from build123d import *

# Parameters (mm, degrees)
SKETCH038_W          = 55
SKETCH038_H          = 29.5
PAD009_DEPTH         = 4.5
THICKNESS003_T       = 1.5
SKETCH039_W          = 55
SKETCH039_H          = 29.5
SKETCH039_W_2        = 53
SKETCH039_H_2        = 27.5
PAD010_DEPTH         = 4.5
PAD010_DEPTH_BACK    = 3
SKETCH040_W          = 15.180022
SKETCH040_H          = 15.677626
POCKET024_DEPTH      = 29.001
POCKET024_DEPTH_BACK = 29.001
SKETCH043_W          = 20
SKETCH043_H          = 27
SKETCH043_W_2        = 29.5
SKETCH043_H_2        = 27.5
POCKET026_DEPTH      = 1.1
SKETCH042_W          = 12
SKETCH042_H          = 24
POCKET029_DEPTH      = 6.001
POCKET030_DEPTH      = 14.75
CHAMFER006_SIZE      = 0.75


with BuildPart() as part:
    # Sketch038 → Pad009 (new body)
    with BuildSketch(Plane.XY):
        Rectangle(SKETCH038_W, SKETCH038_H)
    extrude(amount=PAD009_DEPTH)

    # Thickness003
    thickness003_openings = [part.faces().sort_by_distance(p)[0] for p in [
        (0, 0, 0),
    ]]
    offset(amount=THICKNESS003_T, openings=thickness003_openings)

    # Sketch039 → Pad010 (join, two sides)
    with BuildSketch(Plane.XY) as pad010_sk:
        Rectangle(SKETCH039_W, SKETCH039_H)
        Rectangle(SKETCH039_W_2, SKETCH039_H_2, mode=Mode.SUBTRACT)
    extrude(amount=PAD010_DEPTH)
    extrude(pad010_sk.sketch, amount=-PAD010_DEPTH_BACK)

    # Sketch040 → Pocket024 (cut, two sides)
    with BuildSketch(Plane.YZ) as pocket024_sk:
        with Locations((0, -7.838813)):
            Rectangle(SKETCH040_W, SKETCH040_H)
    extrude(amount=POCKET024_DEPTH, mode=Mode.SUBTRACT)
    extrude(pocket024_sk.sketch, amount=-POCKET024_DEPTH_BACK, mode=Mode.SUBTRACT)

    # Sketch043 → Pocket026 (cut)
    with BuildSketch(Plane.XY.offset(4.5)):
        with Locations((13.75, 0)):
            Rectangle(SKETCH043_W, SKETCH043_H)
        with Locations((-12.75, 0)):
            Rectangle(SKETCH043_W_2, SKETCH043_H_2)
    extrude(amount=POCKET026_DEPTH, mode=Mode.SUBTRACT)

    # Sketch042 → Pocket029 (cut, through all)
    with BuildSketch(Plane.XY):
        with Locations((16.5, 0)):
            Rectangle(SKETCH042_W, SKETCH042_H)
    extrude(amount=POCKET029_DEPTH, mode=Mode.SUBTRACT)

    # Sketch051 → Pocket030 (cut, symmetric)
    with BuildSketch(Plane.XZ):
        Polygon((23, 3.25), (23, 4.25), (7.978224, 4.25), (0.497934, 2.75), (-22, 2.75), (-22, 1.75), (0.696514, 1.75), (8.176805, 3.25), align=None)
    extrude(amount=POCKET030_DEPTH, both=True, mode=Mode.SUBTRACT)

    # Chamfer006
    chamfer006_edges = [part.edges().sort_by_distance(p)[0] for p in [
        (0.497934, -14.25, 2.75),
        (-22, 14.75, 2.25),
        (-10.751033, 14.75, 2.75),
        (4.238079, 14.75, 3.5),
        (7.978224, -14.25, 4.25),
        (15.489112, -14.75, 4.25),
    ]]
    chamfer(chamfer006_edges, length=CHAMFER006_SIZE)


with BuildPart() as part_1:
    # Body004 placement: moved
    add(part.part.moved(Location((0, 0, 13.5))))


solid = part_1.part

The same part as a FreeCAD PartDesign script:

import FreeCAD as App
import Part
import Sketcher

V = App.Vector
Q = App.Units.Quantity


def edges_at(feature, points):
    """Names of the edges that pass closest to the given points."""
    edges = feature.Shape.Edges
    near = lambda p: min(range(len(edges)), key=lambda i: edges[i].distToShape(Part.Vertex(*p))[0])
    return sorted({f"Edge{near(p) + 1}" for p in points})


def faces_at(feature, points):
    """Names of the faces that lie closest to the given points."""
    faces = feature.Shape.Faces
    near = lambda p: min(range(len(faces)), key=lambda i: faces[i].distToShape(Part.Vertex(*p))[0])
    return sorted({f"Face{near(p) + 1}" for p in points})

doc = App.newDocument("Part")
body = doc.addObject("PartDesign::Body", "Body")

sketch1 = body.newObject("Sketcher::SketchObject", "Sketch")
sketch1.AttachmentSupport = (doc.getObject("XY_Plane"), [""])
sketch1.MapMode = "FlatFace"
sketch1.addGeometry(Part.LineSegment(V(-27.5, 14.75, 0), V(-27.5, -14.75, 0)), False)
sketch1.addGeometry(Part.LineSegment(V(-27.5, -14.75, 0), V(27.5, -14.75, 0)), False)
sketch1.addGeometry(Part.LineSegment(V(27.5, -14.75, 0), V(27.5, 14.75, 0)), False)
sketch1.addGeometry(Part.LineSegment(V(27.5, 14.75, 0), V(-27.5, 14.75, 0)), False)
sketch1.addConstraint(Sketcher.Constraint("Coincident", 0, 2, 1, 1))
sketch1.addConstraint(Sketcher.Constraint("Coincident", 1, 2, 2, 1))
sketch1.addConstraint(Sketcher.Constraint("Coincident", 2, 2, 3, 1))
sketch1.addConstraint(Sketcher.Constraint("Coincident", 3, 2, 0, 1))
sketch1.addConstraint(Sketcher.Constraint("Vertical", 0))
sketch1.addConstraint(Sketcher.Constraint("Horizontal", 1))
sketch1.addConstraint(Sketcher.Constraint("Vertical", 2))
sketch1.addConstraint(Sketcher.Constraint("Horizontal", 3))
sketch1.addConstraint(Sketcher.Constraint("Symmetric", 0, 2, 2, 2, -1, 1))
sketch1.addConstraint(Sketcher.Constraint("DistanceX", 1, 1, 1, 2, Q("55 mm")))
sketch1.addConstraint(Sketcher.Constraint("DistanceY", 0, 2, 0, 1, Q("29.5 mm")))
pad1 = body.newObject("PartDesign::Pad", "Pad")
pad1.Profile = sketch1
pad1.Length = 4.5
doc.recompute()

thickness = body.newObject("PartDesign::Thickness", "Thickness")
thickness.Base = (pad1, faces_at(pad1, [(0, 0, 0)]))
thickness.Value = 1.5
thickness.Reversed = False
thickness.Join = "Arc"

sketch2 = body.newObject("Sketcher::SketchObject", "Sketch001")
sketch2.AttachmentSupport = (doc.getObject("XY_Plane"), [""])
sketch2.MapMode = "FlatFace"
sketch2.addGeometry(Part.LineSegment(V(-27.5, 14.75, 0), V(-27.5, -14.75, 0)), False)
sketch2.addGeometry(Part.LineSegment(V(-27.5, -14.75, 0), V(27.5, -14.75, 0)), False)
sketch2.addGeometry(Part.LineSegment(V(27.5, -14.75, 0), V(27.5, 14.75, 0)), False)
sketch2.addGeometry(Part.LineSegment(V(27.5, 14.75, 0), V(-27.5, 14.75, 0)), False)
sketch2.addGeometry(Part.LineSegment(V(26.5, -13.75, 0), V(-26.5, -13.75, 0)), False)
sketch2.addGeometry(Part.LineSegment(V(-26.5, -13.75, 0), V(-26.5, 13.75, 0)), False)
sketch2.addGeometry(Part.LineSegment(V(-26.5, 13.75, 0), V(26.5, 13.75, 0)), False)
sketch2.addGeometry(Part.LineSegment(V(26.5, 13.75, 0), V(26.5, -13.75, 0)), False)
sketch2.addConstraint(Sketcher.Constraint("Coincident", 0, 2, 1, 1))
sketch2.addConstraint(Sketcher.Constraint("Coincident", 1, 2, 2, 1))
sketch2.addConstraint(Sketcher.Constraint("Coincident", 2, 2, 3, 1))
sketch2.addConstraint(Sketcher.Constraint("Coincident", 3, 2, 0, 1))
sketch2.addConstraint(Sketcher.Constraint("Coincident", 4, 2, 5, 1))
sketch2.addConstraint(Sketcher.Constraint("Coincident", 5, 2, 6, 1))
sketch2.addConstraint(Sketcher.Constraint("Coincident", 6, 2, 7, 1))
sketch2.addConstraint(Sketcher.Constraint("Coincident", 7, 2, 4, 1))
sketch2.addConstraint(Sketcher.Constraint("Vertical", 0))
sketch2.addConstraint(Sketcher.Constraint("Horizontal", 1))
sketch2.addConstraint(Sketcher.Constraint("Vertical", 2))
sketch2.addConstraint(Sketcher.Constraint("Horizontal", 3))
sketch2.addConstraint(Sketcher.Constraint("Horizontal", 4))
sketch2.addConstraint(Sketcher.Constraint("Vertical", 5))
sketch2.addConstraint(Sketcher.Constraint("Horizontal", 6))
sketch2.addConstraint(Sketcher.Constraint("Vertical", 7))
sketch2.addConstraint(Sketcher.Constraint("Symmetric", 0, 2, 2, 2, -1, 1))
sketch2.addConstraint(Sketcher.Constraint("Symmetric", 4, 2, 6, 2, -1, 1))
sketch2.addConstraint(Sketcher.Constraint("DistanceX", 1, 1, 1, 2, Q("55 mm")))
sketch2.addConstraint(Sketcher.Constraint("DistanceX", 4, 2, 4, 1, Q("53 mm")))
sketch2.addConstraint(Sketcher.Constraint("DistanceY", 0, 2, 0, 1, Q("29.5 mm")))
sketch2.addConstraint(Sketcher.Constraint("DistanceY", 5, 1, 5, 2, Q("27.5 mm")))
pad2 = body.newObject("PartDesign::Pad", "Pad001")
pad2.Profile = sketch2
pad2.Type = "TwoLengths"
pad2.Length = 4.5
pad2.Length2 = 3

sketch3 = body.newObject("Sketcher::SketchObject", "Sketch002")
sketch3.AttachmentSupport = (doc.getObject("YZ_Plane"), [""])
sketch3.MapMode = "FlatFace"
sketch3.addGeometry(Part.LineSegment(V(-7.590011, 0, 0), V(-7.590011, -15.677626, 0)), False)
sketch3.addGeometry(Part.LineSegment(V(-7.590011, -15.677626, 0), V(7.590011, -15.677626, 0)), False)
sketch3.addGeometry(Part.LineSegment(V(7.590011, -15.677626, 0), V(7.590011, 0, 0)), False)
sketch3.addGeometry(Part.LineSegment(V(7.590011, 0, 0), V(-7.590011, 0, 0)), False)
sketch3.addConstraint(Sketcher.Constraint("Coincident", 0, 2, 1, 1))
sketch3.addConstraint(Sketcher.Constraint("Coincident", 1, 2, 2, 1))
sketch3.addConstraint(Sketcher.Constraint("Coincident", 2, 2, 3, 1))
sketch3.addConstraint(Sketcher.Constraint("Coincident", 3, 2, 0, 1))
sketch3.addConstraint(Sketcher.Constraint("Vertical", 0))
sketch3.addConstraint(Sketcher.Constraint("Horizontal", 1))
sketch3.addConstraint(Sketcher.Constraint("Vertical", 2))
sketch3.addConstraint(Sketcher.Constraint("Horizontal", 3))
sketch3.addConstraint(Sketcher.Constraint("Symmetric", 2, 2, 3, 2, -1, 1))
sketch3.addConstraint(Sketcher.Constraint("DistanceX", 1, 1, 1, 2, Q("15.180022 mm")))
sketch3.addConstraint(Sketcher.Constraint("DistanceY", 0, 2, 0, 1, Q("15.677626 mm")))
pocket1 = body.newObject("PartDesign::Pocket", "Pocket")
pocket1.Profile = sketch3
pocket1.Type = "ThroughAll"
pocket1.Midplane = True

sketch4 = body.newObject("Sketcher::SketchObject", "Sketch003")
sketch4.AttachmentSupport = (doc.getObject("XY_Plane"), [""])
sketch4.MapMode = "FlatFace"
sketch4.AttachmentOffset = App.Placement(V(0, 0, 4.5), App.Rotation())
sketch4.addGeometry(Part.LineSegment(V(3.75, 13.5, 0), V(3.75, -13.5, 0)), False)
sketch4.addGeometry(Part.LineSegment(V(3.75, -13.5, 0), V(23.75, -13.5, 0)), False)
sketch4.addGeometry(Part.LineSegment(V(23.75, -13.5, 0), V(23.75, 13.5, 0)), False)
sketch4.addGeometry(Part.LineSegment(V(23.75, 13.5, 0), V(3.75, 13.5, 0)), False)
sketch4.addGeometry(Part.LineSegment(V(-27.5, 13.75, 0), V(-27.5, -13.75, 0)), False)
sketch4.addGeometry(Part.LineSegment(V(-27.5, -13.75, 0), V(2, -13.75, 0)), False)
sketch4.addGeometry(Part.LineSegment(V(2, -13.75, 0), V(2, 13.75, 0)), False)
sketch4.addGeometry(Part.LineSegment(V(2, 13.75, 0), V(-27.5, 13.75, 0)), False)
sketch4.addConstraint(Sketcher.Constraint("Coincident", 0, 2, 1, 1))
sketch4.addConstraint(Sketcher.Constraint("Coincident", 1, 2, 2, 1))
sketch4.addConstraint(Sketcher.Constraint("Coincident", 2, 2, 3, 1))
sketch4.addConstraint(Sketcher.Constraint("Coincident", 3, 2, 0, 1))
sketch4.addConstraint(Sketcher.Constraint("Coincident", 4, 2, 5, 1))
sketch4.addConstraint(Sketcher.Constraint("Coincident", 5, 2, 6, 1))
sketch4.addConstraint(Sketcher.Constraint("Coincident", 6, 2, 7, 1))
sketch4.addConstraint(Sketcher.Constraint("Coincident", 7, 2, 4, 1))
sketch4.addConstraint(Sketcher.Constraint("Vertical", 0))
sketch4.addConstraint(Sketcher.Constraint("Horizontal", 1))
sketch4.addConstraint(Sketcher.Constraint("Vertical", 2))
sketch4.addConstraint(Sketcher.Constraint("Horizontal", 3))
sketch4.addConstraint(Sketcher.Constraint("Vertical", 4))
sketch4.addConstraint(Sketcher.Constraint("Horizontal", 5))
sketch4.addConstraint(Sketcher.Constraint("Vertical", 6))
sketch4.addConstraint(Sketcher.Constraint("Horizontal", 7))
sketch4.addConstraint(Sketcher.Constraint("DistanceX", 1, 1, 1, 2, Q("20 mm")))
sketch4.addConstraint(Sketcher.Constraint("DistanceY", 0, 2, 0, 1, Q("27 mm")))
sketch4.addConstraint(Sketcher.Constraint("DistanceX", 5, 1, 5, 2, Q("29.5 mm")))
sketch4.addConstraint(Sketcher.Constraint("DistanceY", 4, 2, 4, 1, Q("27.5 mm")))
sketch4.addConstraint(Sketcher.Constraint("DistanceX", -1, 1, 5, 2, Q("2 mm")))
sketch4.addConstraint(Sketcher.Constraint("DistanceY", 0, 2, -1, 1, Q("13.5 mm")))
sketch4.addConstraint(Sketcher.Constraint("DistanceX", -1, 1, 0, 2, Q("3.75 mm")))
sketch4.addConstraint(Sketcher.Constraint("DistanceY", 4, 2, -1, 1, Q("13.75 mm")))
pocket2 = body.newObject("PartDesign::Pocket", "Pocket001")
pocket2.Profile = sketch4
pocket2.Length = 1.1
pocket2.Reversed = True

sketch5 = body.newObject("Sketcher::SketchObject", "Sketch004")
sketch5.AttachmentSupport = (doc.getObject("XY_Plane"), [""])
sketch5.MapMode = "FlatFace"
sketch5.addGeometry(Part.LineSegment(V(10.5, 12, 0), V(10.5, -12, 0)), False)
sketch5.addGeometry(Part.LineSegment(V(10.5, -12, 0), V(22.5, -12, 0)), False)
sketch5.addGeometry(Part.LineSegment(V(22.5, -12, 0), V(22.5, 12, 0)), False)
sketch5.addGeometry(Part.LineSegment(V(22.5, 12, 0), V(10.5, 12, 0)), False)
sketch5.addConstraint(Sketcher.Constraint("Coincident", 0, 2, 1, 1))
sketch5.addConstraint(Sketcher.Constraint("Coincident", 1, 2, 2, 1))
sketch5.addConstraint(Sketcher.Constraint("Coincident", 2, 2, 3, 1))
sketch5.addConstraint(Sketcher.Constraint("Coincident", 3, 2, 0, 1))
sketch5.addConstraint(Sketcher.Constraint("Vertical", 0))
sketch5.addConstraint(Sketcher.Constraint("Horizontal", 1))
sketch5.addConstraint(Sketcher.Constraint("Vertical", 2))
sketch5.addConstraint(Sketcher.Constraint("Horizontal", 3))
sketch5.addConstraint(Sketcher.Constraint("DistanceX", 1, 1, 1, 2, Q("12 mm")))
sketch5.addConstraint(Sketcher.Constraint("DistanceY", 0, 2, 0, 1, Q("24 mm")))
sketch5.addConstraint(Sketcher.Constraint("DistanceY", 0, 2, -1, 1, Q("12 mm")))
sketch5.addConstraint(Sketcher.Constraint("DistanceX", -1, 1, 0, 2, Q("10.5 mm")))
pocket3 = body.newObject("PartDesign::Pocket", "Pocket002")
pocket3.Profile = sketch5
pocket3.Type = "ThroughAll"
pocket3.Reversed = True

sketch6 = body.newObject("Sketcher::SketchObject", "Sketch005")
sketch6.AttachmentSupport = (doc.getObject("XZ_Plane"), [""])
sketch6.MapMode = "FlatFace"
sketch6.addGeometry(Part.LineSegment(V(23, 3.25, 0), V(23, 4.25, 0)), False)
sketch6.addGeometry(Part.LineSegment(V(23, 4.25, 0), V(7.978224, 4.25, 0)), False)
sketch6.addGeometry(Part.LineSegment(V(7.978224, 4.25, 0), V(0.497934, 2.75, 0)), False)
sketch6.addGeometry(Part.LineSegment(V(0.497934, 2.75, 0), V(-22, 2.75, 0)), False)
sketch6.addGeometry(Part.LineSegment(V(-22, 2.75, 0), V(-22, 1.75, 0)), False)
sketch6.addGeometry(Part.LineSegment(V(-22, 1.75, 0), V(0.696514, 1.75, 0)), False)
sketch6.addGeometry(Part.LineSegment(V(0.696514, 1.75, 0), V(8.176805, 3.25, 0)), False)
sketch6.addGeometry(Part.LineSegment(V(8.176805, 3.25, 0), V(23, 3.25, 0)), False)
sketch6.addConstraint(Sketcher.Constraint("Coincident", 0, 2, 1, 1))
sketch6.addConstraint(Sketcher.Constraint("Coincident", 1, 2, 2, 1))
sketch6.addConstraint(Sketcher.Constraint("Coincident", 2, 2, 3, 1))
sketch6.addConstraint(Sketcher.Constraint("Coincident", 3, 2, 4, 1))
sketch6.addConstraint(Sketcher.Constraint("Coincident", 4, 2, 5, 1))
sketch6.addConstraint(Sketcher.Constraint("Coincident", 5, 2, 6, 1))
sketch6.addConstraint(Sketcher.Constraint("Coincident", 6, 2, 7, 1))
sketch6.addConstraint(Sketcher.Constraint("Coincident", 7, 2, 0, 1))
sketch6.addConstraint(Sketcher.Constraint("Vertical", 0))
sketch6.addConstraint(Sketcher.Constraint("Horizontal", 1))
sketch6.addConstraint(Sketcher.Constraint("Horizontal", 3))
sketch6.addConstraint(Sketcher.Constraint("Vertical", 4))
sketch6.addConstraint(Sketcher.Constraint("Horizontal", 5))
sketch6.addConstraint(Sketcher.Constraint("Horizontal", 7))
sketch6.addConstraint(Sketcher.Constraint("Parallel", 2, 6))
sketch6.addConstraint(Sketcher.Constraint("Equal", 0, 4))
sketch6.addConstraint(Sketcher.Constraint("DistanceY", 0, 1, 0, 2, Q("1 mm")))
sketch6.addConstraint(Sketcher.Constraint("DistanceX", -1, 1, 0, 2, Q("23 mm")))
sketch6.addConstraint(Sketcher.Constraint("DistanceX", 3, 2, -1, 1, Q("22 mm")))
sketch6.addConstraint(Sketcher.Constraint("DistanceY", 2, 2, 1, 2, Q("1.5 mm")))
sketch6.addConstraint(Sketcher.Constraint("DistanceY", -1, 1, 0, 2, Q("4.25 mm")))
sketch6.addConstraint(Sketcher.Constraint("DistanceX", 1, 2, 1, 1, Q("15.021776 mm")))
sketch6.addConstraint(Sketcher.Constraint("DistanceX", 3, 2, 3, 1, Q("22.497934 mm")))
sketch6.addConstraint(Sketcher.Constraint("DistanceX", 5, 1, 5, 2, Q("22.696514 mm")))
pocket4 = body.newObject("PartDesign::Pocket", "Pocket003")
pocket4.Profile = sketch6
pocket4.Length = 29.5
pocket4.Midplane = True
doc.recompute()

chamfer = body.newObject("PartDesign::Chamfer", "Chamfer")
chamfer.Base = (pocket4, edges_at(pocket4, [
    (0.498, -14.25, 2.75),
    (-22, 14.75, 2.25),
    (-10.751, 14.75, 2.75),
    (4.238, 14.75, 3.5),
    (7.978, -14.25, 4.25),
    (15.489, -14.75, 4.25),
]))
chamfer.Size = 0.75
body2 = doc.addObject("PartDesign::Body", "Body001")
doc.recompute()

body.Placement = App.Placement(V(0, 0, 13.5), App.Rotation(V(0, 0, 1), 0))
boolean = body2.newObject("PartDesign::Boolean", "Boolean")
boolean.Type = "Fuse"
boolean.addObjects([body])

doc.recompute()
